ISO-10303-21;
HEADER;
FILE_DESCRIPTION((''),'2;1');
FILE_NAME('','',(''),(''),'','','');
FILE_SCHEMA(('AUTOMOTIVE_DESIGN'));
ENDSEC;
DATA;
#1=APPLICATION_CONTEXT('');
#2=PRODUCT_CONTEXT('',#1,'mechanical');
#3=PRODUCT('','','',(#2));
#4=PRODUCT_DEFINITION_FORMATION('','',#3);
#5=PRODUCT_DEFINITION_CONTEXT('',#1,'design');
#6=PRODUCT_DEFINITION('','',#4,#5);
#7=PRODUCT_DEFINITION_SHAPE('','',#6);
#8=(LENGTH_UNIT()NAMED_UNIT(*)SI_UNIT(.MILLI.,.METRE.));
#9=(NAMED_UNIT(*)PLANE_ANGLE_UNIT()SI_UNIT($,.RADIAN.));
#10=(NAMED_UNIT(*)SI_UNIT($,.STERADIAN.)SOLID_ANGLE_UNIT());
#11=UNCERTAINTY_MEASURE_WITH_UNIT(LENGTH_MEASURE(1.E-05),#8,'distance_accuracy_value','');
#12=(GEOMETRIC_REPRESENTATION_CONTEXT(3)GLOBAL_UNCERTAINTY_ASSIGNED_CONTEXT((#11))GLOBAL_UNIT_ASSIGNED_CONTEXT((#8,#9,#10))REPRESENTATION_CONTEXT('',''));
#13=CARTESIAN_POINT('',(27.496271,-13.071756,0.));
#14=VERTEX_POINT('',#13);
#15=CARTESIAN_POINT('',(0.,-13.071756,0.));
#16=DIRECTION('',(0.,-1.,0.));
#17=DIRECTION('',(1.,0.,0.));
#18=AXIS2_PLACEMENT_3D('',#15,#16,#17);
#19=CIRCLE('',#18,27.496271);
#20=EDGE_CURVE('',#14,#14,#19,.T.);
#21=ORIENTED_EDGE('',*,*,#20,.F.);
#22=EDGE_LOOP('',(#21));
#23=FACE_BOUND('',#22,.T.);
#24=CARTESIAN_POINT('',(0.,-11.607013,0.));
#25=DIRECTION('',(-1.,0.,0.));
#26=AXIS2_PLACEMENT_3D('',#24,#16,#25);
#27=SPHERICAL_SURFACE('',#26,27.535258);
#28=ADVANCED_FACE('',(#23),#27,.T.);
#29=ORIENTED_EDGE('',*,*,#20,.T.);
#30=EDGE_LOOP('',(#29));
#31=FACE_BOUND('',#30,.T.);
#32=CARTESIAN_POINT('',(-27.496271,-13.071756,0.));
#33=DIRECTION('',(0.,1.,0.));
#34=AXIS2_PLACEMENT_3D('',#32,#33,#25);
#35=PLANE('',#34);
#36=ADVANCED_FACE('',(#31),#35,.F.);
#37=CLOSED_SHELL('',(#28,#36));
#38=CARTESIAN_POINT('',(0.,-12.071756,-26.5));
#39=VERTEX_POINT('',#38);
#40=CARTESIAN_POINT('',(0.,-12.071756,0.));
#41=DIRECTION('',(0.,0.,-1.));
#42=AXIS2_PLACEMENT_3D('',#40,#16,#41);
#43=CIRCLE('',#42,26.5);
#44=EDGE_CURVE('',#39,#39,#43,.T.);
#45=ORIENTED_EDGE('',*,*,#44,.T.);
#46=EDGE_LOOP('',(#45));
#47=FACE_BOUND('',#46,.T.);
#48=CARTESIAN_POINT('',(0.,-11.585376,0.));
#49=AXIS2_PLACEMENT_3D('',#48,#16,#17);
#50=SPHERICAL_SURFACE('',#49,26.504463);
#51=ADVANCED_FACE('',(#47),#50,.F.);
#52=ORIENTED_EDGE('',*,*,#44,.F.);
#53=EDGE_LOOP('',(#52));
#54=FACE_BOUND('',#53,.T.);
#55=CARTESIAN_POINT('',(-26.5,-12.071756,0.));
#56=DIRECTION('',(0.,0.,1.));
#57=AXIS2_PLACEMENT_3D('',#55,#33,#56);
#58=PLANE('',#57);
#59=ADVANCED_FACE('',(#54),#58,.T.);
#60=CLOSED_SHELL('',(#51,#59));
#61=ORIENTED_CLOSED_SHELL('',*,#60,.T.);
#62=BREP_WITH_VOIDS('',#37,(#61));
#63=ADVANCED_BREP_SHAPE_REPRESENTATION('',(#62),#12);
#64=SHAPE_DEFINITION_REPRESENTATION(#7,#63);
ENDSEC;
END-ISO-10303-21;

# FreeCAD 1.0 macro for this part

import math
import FreeCAD as App
import Part
import Sketcher

doc = App.newDocument("Part")
body = doc.addObject("PartDesign::Body", "Body")

# Sketch on XY plane
sketch1 = body.newObject("Sketcher::SketchObject", "Sketch")
sketch1.AttachmentSupport = (doc.getObject("XY_Plane"), [""])
sketch1.MapMode = "FlatFace"
sketch1.addGeometry(Part.LineSegment(App.Vector(0, -13, 0), App.Vector(0, 16, 0)), False)
sketch1.addGeometry(Part.ArcOfCircle(Part.Circle(App.Vector(0, -12, 0), App.Vector(0, 0, 1), 28), math.radians(90), math.radians(183)), False)
sketch1.addGeometry(Part.LineSegment(App.Vector(-27, -13, 0), App.Vector(0, -13, 0)), False)
sketch1.addConstraint(Sketcher.Constraint("Coincident", 0, 2, 1, 1))
sketch1.addConstraint(Sketcher.Constraint("Coincident", 1, 2, 2, 1))
sketch1.addConstraint(Sketcher.Constraint("Coincident", 2, 2, 0, 1))
sketch1.addConstraint(Sketcher.Constraint("Vertical", 0))
sketch1.addConstraint(Sketcher.Constraint("Horizontal", 2))
sketch1.addConstraint(Sketcher.Constraint("PointOnObject", 1, 3, -2))
sketch1.addConstraint(Sketcher.Constraint("PointOnObject", 0, 2, -2))
sketch1.addConstraint(Sketcher.Constraint("DistanceY", 0, 1, 0, 2, 29.0))
sketch1.addConstraint(Sketcher.Constraint("Radius", 1, 27.535258))
sketch1.addConstraint(Sketcher.Constraint("DistanceY", 1, 3, -1, 1, 11.607013))
revolution = body.newObject("PartDesign::Revolution", "Revolution")
revolution.Profile = sketch1
revolution.ReferenceAxis = (sketch1, ["V_Axis"])
revolution.Angle = 360

# Sketch on XY plane
sketch2 = body.newObject("Sketcher::SketchObject", "Sketch001")
sketch2.AttachmentSupport = (doc.getObject("XY_Plane"), [""])
sketch2.MapMode = "FlatFace"
sketch2.addGeometry(Part.LineSegment(App.Vector(0, -12, 0), App.Vector(0, 15, 0)), False)
sketch2.addGeometry(Part.ArcOfCircle(Part.Circle(App.Vector(0, -12, 0), App.Vector(0, 0, 1), 27), math.radians(90), math.radians(181)), False)
sketch2.addGeometry(Part.LineSegment(App.Vector(-26, -12, 0), App.Vector(0, -12, 0)), False)
sketch2.addConstraint(Sketcher.Constraint("Coincident", 0, 2, 1, 1))
sketch2.addConstraint(Sketcher.Constraint("Coincident", 1, 2, 2, 1))
sketch2.addConstraint(Sketcher.Constraint("Coincident", 2, 2, 0, 1))
sketch2.addConstraint(Sketcher.Constraint("Vertical", 0))
sketch2.addConstraint(Sketcher.Constraint("Horizontal", 2))
sketch2.addConstraint(Sketcher.Constraint("PointOnObject", 1, 3, -2))
sketch2.addConstraint(Sketcher.Constraint("PointOnObject", 0, 2, -2))
sketch2.addConstraint(Sketcher.Constraint("DistanceX", 2, 1, 2, 2, 26.5))
sketch2.addConstraint(Sketcher.Constraint("Radius", 1, 26.504463))
sketch2.addConstraint(Sketcher.Constraint("DistanceY", 1, 3, -1, 1, 11.585376))
groove = body.newObject("PartDesign::Groove", "Groove")
groove.Profile = sketch2
groove.ReferenceAxis = (sketch2, ["V_Axis"])
groove.Angle = 360

doc.recompute()
